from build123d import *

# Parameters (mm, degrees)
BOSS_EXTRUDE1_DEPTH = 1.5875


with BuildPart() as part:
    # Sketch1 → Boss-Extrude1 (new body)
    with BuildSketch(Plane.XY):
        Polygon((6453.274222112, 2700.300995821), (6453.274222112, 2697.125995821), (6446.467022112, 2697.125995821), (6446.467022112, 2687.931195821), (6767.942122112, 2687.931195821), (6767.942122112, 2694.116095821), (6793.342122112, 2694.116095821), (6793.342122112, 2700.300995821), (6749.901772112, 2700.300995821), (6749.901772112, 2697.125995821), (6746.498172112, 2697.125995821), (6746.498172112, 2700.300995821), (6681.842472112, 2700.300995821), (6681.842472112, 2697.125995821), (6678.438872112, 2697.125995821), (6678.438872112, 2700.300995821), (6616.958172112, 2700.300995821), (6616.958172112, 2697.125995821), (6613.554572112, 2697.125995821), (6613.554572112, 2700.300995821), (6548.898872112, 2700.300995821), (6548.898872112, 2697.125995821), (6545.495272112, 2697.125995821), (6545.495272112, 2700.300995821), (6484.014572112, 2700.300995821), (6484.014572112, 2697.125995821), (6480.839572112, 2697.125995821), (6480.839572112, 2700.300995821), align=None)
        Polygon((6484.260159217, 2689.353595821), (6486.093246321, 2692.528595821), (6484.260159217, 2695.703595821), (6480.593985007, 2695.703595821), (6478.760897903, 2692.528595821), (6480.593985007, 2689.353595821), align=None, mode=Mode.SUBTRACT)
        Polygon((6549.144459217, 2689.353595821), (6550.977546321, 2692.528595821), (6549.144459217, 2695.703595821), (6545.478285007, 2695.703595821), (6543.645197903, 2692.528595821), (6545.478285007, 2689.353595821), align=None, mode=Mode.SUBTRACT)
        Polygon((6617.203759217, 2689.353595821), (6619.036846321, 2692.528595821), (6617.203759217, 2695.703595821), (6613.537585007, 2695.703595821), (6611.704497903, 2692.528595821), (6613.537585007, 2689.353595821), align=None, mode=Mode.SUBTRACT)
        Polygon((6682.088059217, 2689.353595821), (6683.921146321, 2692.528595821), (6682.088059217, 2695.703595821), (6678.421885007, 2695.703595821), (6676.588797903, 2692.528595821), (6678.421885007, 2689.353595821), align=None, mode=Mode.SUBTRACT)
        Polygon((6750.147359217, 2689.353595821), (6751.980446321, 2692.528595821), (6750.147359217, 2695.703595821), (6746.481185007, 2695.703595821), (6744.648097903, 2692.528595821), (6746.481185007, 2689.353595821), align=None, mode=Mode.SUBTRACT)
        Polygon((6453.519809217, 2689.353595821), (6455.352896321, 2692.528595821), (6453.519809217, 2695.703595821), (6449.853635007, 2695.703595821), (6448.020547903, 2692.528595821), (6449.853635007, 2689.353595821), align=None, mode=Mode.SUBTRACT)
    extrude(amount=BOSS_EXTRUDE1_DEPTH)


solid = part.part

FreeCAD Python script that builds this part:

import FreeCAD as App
import Part
import Sketcher
Q = App.Units.Quantity


def add_polygon(sketch, points):
    """Adds a closed chain of lines whose ends are joined by coincident constraints."""
    first, n = sketch.GeometryCount, len(points)
    for a, b in zip(points, points[1:] + points[:1]):
        sketch.addGeometry(Part.LineSegment(App.Vector(*a, 0), App.Vector(*b, 0)), False)
    for i in range(n):
        sketch.addConstraint(Sketcher.Constraint("Coincident", first + i, 2, first + (i + 1) % n, 1))

doc = App.newDocument("Part")
body = doc.addObject("PartDesign::Body", "Body")

# Sketch on XY plane
sketch1 = doc.addObject("Sketcher::SketchObject", "Sketch")
body.addObject(sketch1)
sketch1.AttachmentSupport = (doc.XY_Plane, [""])
sketch1.MapMode = "FlatFace"
add_polygon(sketch1, [(6453.3, 2700.3), (6453.3, 2697.1), (6446.5, 2697.1), (6446.5, 2687.9), (6767.9, 2687.9), (6767.9, 2694.1), (6793.3, 2694.1), (6793.3, 2700.3), (6749.9, 2700.3), (6749.9, 2697.1), (6746.5, 2697.1), (6746.5, 2700.3), (6681.8, 2700.3), (6681.8, 2697.1), (6678.4, 2697.1), (6678.4, 2700.3), (6617, 2700.3), (6617, 2697.1), (6613.6, 2697.1), (6613.6, 2700.3), (6548.9, 2700.3), (6548.9, 2697.1), (6545.5, 2697.1), (6545.5, 2700.3), (6484, 2700.3), (6484, 2697.1), (6480.8, 2697.1), (6480.8, 2700.3)])  # lines 0-27
add_polygon(sketch1, [(6455.4, 2692.5), (6453.5, 2689.4), (6449.9, 2689.4), (6448, 2692.5), (6449.9, 2695.7), (6453.5, 2695.7)])  # lines 28-33
add_polygon(sketch1, [(6486.1, 2692.5), (6484.3, 2689.4), (6480.6, 2689.4), (6478.8, 2692.5), (6480.6, 2695.7), (6484.3, 2695.7)])  # lines 34-39
add_polygon(sketch1, [(6551, 2692.5), (6549.1, 2689.4), (6545.5, 2689.4), (6543.6, 2692.5), (6545.5, 2695.7), (6549.1, 2695.7)])  # lines 40-45
add_polygon(sketch1, [(6619, 2692.5), (6617.2, 2689.4), (6613.5, 2689.4), (6611.7, 2692.5), (6613.5, 2695.7), (6617.2, 2695.7)])  # lines 46-51
add_polygon(sketch1, [(6683.9, 2692.5), (6682.1, 2689.4), (6678.4, 2689.4), (6676.6, 2692.5), (6678.4, 2695.7), (6682.1, 2695.7)])  # lines 52-57
add_polygon(sketch1, [(6752, 2692.5), (6750.1, 2689.4), (6746.5, 2689.4), (6744.6, 2692.5), (6746.5, 2695.7), (6750.1, 2695.7)])  # lines 58-63
sketch1.addConstraint([
    Sketcher.Constraint("Vertical", 0),
    Sketcher.Constraint("Horizontal", 1),
    Sketcher.Constraint("Vertical", 2),
    Sketcher.Constraint("Horizontal", 3),
    Sketcher.Constraint("Vertical", 4),
    Sketcher.Constraint("Horizontal", 5),
    Sketcher.Constraint("Vertical", 6),
    Sketcher.Constraint("Horizontal", 7),
    Sketcher.Constraint("Vertical", 8),
    Sketcher.Constraint("Horizontal", 9),
    Sketcher.Constraint("Vertical", 10),
    Sketcher.Constraint("Horizontal", 11),
    Sketcher.Constraint("Vertical", 12),
    Sketcher.Constraint("Horizontal", 13),
    Sketcher.Constraint("Vertical", 14),
    Sketcher.Constraint("Horizontal", 15),
    Sketcher.Constraint("Vertical", 16),
    Sketcher.Constraint("Horizontal", 17),
    Sketcher.Constraint("Vertical", 18),
    Sketcher.Constraint("Horizontal", 19),
    Sketcher.Constraint("Vertical", 20),
    Sketcher.Constraint("Horizontal", 21),
    Sketcher.Constraint("Vertical", 22),
    Sketcher.Constraint("Horizontal", 23),
    Sketcher.Constraint("Vertical", 24),
    Sketcher.Constraint("Horizontal", 25),
    Sketcher.Constraint("Vertical", 26),
    Sketcher.Constraint("Horizontal", 27),
    Sketcher.Constraint("Horizontal", 29),
    Sketcher.Constraint("Horizontal", 32),
    Sketcher.Constraint("Horizontal", 35),
    Sketcher.Constraint("Horizontal", 38),
    Sketcher.Constraint("Horizontal", 41),
    Sketcher.Constraint("Horizontal", 44),
    Sketcher.Constraint("Horizontal", 47),
    Sketcher.Constraint("Horizontal", 50),
    Sketcher.Constraint("Horizontal", 53),
    Sketcher.Constraint("Horizontal", 56),
    Sketcher.Constraint("Horizontal", 59),
    Sketcher.Constraint("Horizontal", 62),
    Sketcher.Constraint("Parallel", 28, 31),
    Sketcher.Constraint("Parallel", 30, 33),
    Sketcher.Constraint("Parallel", 31, 34),
    Sketcher.Constraint("Parallel", 33, 36),
    Sketcher.Constraint("Parallel", 34, 37),
    Sketcher.Constraint("Parallel", 36, 39),
    Sketcher.Constraint("Parallel", 37, 40),
    Sketcher.Constraint("Parallel", 39, 42),
    Sketcher.Constraint("Parallel", 40, 43),
    Sketcher.Constraint("Parallel", 42, 45),
    Sketcher.Constraint("Parallel", 43, 46),
    Sketcher.Constraint("Parallel", 45, 48),
    Sketcher.Constraint("Parallel", 46, 49),
    Sketcher.Constraint("Parallel", 48, 51),
    Sketcher.Constraint("Parallel", 49, 52),
    Sketcher.Constraint("Parallel", 51, 54),
    Sketcher.Constraint("Parallel", 52, 55),
    Sketcher.Constraint("Parallel", 54, 57),
    Sketcher.Constraint("Parallel", 55, 58),
    Sketcher.Constraint("Parallel", 57, 60),
    Sketcher.Constraint("Parallel", 58, 61),
    Sketcher.Constraint("Parallel", 60, 63),
    Sketcher.Constraint("Horizontal", 1, 2, 8, 2),
    Sketcher.Constraint("Horizontal", 7, 2, 10, 2),
    Sketcher.Constraint("Horizontal", 9, 2, 12, 2),
    Sketcher.Constraint("Horizontal", 11, 2, 14, 2),
    Sketcher.Constraint("Horizontal", 13, 2, 16, 2),
    Sketcher.Constraint("Horizontal", 15, 2, 18, 2),
    Sketcher.Constraint("Horizontal", 17, 2, 20, 2),
    Sketcher.Constraint("Horizontal", 19, 2, 22, 2),
    Sketcher.Constraint("Horizontal", 21, 2, 24, 2),
    Sketcher.Constraint("Horizontal", 23, 2, 26, 2),
    Sketcher.Constraint("Horizontal", 30, 2, 33, 2),
    Sketcher.Constraint("Horizontal", 29, 2, 34, 2),
    Sketcher.Constraint("Horizontal", 33, 2, 36, 2),
    Sketcher.Constraint("Horizontal", 32, 2, 37, 2),
    Sketcher.Constraint("Horizontal", 36, 2, 39, 2),
    Sketcher.Constraint("Horizontal", 35, 2, 40, 2),
    Sketcher.Constraint("Horizontal", 39, 2, 42, 2),
    Sketcher.Constraint("Horizontal", 38, 2, 43, 2),
    Sketcher.Constraint("Horizontal", 42, 2, 45, 2),
    Sketcher.Constraint("Horizontal", 41, 2, 46, 2),
    Sketcher.Constraint("Horizontal", 45, 2, 48, 2),
    Sketcher.Constraint("Horizontal", 44, 2, 49, 2),
    Sketcher.Constraint("Horizontal", 48, 2, 51, 2),
    Sketcher.Constraint("Horizontal", 47, 2, 52, 2),
    Sketcher.Constraint("Horizontal", 51, 2, 54, 2),
    Sketcher.Constraint("Horizontal", 50, 2, 55, 2),
    Sketcher.Constraint("Horizontal", 54, 2, 57, 2),
    Sketcher.Constraint("Horizontal", 53, 2, 58, 2),
    Sketcher.Constraint("Horizontal", 57, 2, 60, 2),
    Sketcher.Constraint("Horizontal", 56, 2, 61, 2),
    Sketcher.Constraint("Horizontal", 60, 2, 63, 2),
    Sketcher.Constraint("Vertical", 29, 2, 31, 2),
    Sketcher.Constraint("Vertical", 28, 2, 32, 2),
    Sketcher.Constraint("Equal", 9, 13),
    Sketcher.Constraint("Equal", 13, 17),
    Sketcher.Constraint("Equal", 11, 19),
    Sketcher.Constraint("Equal", 17, 21),
    Sketcher.Constraint("Equal", 15, 23),
    Sketcher.Constraint("Equal", 32, 35),
    Sketcher.Constraint("Equal", 38, 41),
    Sketcher.Constraint("Equal", 44, 47),
    Sketcher.Constraint("Equal", 50, 53),
    Sketcher.Constraint("Equal", 56, 59),
    Sketcher.Constraint("Equal", 25, 0),
    Sketcher.Constraint("Equal", 4, 6),
    Sketcher.Constraint("DistanceX", 5, 1, 5, 2, Q("1 in")),
    Sketcher.Constraint("Angle", 28, Q("-120 deg")),
    Sketcher.Constraint("DistanceX", 1, 2, 1, 1, Q("0.268 in")),
    Sketcher.Constraint("DistanceX", 9, 2, 9, 1, Q("0.134 in")),
    Sketcher.Constraint("DistanceX", 25, 2, 25, 1, Q("0.125 in")),
    Sketcher.Constraint("DistanceY", 2, 2, 2, 1, Q("0.362 in")),
    Sketcher.Constraint("DistanceX", 3, 1, 3, 2, Q("12.6565 in")),
    Sketcher.Constraint("DistanceX", 11, 2, 11, 1, Q("2.5455 in")),
    Sketcher.Constraint("DistanceX", 15, 2, 15, 1, Q("2.4205 in")),
    Sketcher.Constraint("DistanceX", 7, 2, 7, 1, 43.44035),
    Sketcher.Constraint("DistanceX", 29, 2, 29, 1, 3.666174),
    Sketcher.Constraint("DistanceX", -1, 1, 28, 2, 6453.519809),
    Sketcher.Constraint("DistanceX", -1, 1, 34, 2, 6484.260159),
    Sketcher.Constraint("DistanceX", -1, 1, 40, 2, 6549.144459),
    Sketcher.Constraint("DistanceX", -1, 1, 46, 2, 6617.203759),
    Sketcher.Constraint("DistanceX", -1, 1, 52, 2, 6682.088059),
    Sketcher.Constraint("DistanceX", -1, 1, 58, 2, 6750.147359),
    Sketcher.Constraint("Distance", 28, 3.666174),
    Sketcher.Constraint("DistanceX", -1, 1, 0, 2, 6453.274222),
    Sketcher.Constraint("DistanceY", -1, 1, 0, 2, 2697.125996),
    Sketcher.Constraint("DistanceY", -1, 1, 28, 2, 2689.353596),
])
pad1 = doc.addObject("PartDesign::Pad", "Pad")
body.addObject(pad1)
pad1.Profile = sketch1
pad1.Length = Q("0.0625 in")

doc.recompute()
